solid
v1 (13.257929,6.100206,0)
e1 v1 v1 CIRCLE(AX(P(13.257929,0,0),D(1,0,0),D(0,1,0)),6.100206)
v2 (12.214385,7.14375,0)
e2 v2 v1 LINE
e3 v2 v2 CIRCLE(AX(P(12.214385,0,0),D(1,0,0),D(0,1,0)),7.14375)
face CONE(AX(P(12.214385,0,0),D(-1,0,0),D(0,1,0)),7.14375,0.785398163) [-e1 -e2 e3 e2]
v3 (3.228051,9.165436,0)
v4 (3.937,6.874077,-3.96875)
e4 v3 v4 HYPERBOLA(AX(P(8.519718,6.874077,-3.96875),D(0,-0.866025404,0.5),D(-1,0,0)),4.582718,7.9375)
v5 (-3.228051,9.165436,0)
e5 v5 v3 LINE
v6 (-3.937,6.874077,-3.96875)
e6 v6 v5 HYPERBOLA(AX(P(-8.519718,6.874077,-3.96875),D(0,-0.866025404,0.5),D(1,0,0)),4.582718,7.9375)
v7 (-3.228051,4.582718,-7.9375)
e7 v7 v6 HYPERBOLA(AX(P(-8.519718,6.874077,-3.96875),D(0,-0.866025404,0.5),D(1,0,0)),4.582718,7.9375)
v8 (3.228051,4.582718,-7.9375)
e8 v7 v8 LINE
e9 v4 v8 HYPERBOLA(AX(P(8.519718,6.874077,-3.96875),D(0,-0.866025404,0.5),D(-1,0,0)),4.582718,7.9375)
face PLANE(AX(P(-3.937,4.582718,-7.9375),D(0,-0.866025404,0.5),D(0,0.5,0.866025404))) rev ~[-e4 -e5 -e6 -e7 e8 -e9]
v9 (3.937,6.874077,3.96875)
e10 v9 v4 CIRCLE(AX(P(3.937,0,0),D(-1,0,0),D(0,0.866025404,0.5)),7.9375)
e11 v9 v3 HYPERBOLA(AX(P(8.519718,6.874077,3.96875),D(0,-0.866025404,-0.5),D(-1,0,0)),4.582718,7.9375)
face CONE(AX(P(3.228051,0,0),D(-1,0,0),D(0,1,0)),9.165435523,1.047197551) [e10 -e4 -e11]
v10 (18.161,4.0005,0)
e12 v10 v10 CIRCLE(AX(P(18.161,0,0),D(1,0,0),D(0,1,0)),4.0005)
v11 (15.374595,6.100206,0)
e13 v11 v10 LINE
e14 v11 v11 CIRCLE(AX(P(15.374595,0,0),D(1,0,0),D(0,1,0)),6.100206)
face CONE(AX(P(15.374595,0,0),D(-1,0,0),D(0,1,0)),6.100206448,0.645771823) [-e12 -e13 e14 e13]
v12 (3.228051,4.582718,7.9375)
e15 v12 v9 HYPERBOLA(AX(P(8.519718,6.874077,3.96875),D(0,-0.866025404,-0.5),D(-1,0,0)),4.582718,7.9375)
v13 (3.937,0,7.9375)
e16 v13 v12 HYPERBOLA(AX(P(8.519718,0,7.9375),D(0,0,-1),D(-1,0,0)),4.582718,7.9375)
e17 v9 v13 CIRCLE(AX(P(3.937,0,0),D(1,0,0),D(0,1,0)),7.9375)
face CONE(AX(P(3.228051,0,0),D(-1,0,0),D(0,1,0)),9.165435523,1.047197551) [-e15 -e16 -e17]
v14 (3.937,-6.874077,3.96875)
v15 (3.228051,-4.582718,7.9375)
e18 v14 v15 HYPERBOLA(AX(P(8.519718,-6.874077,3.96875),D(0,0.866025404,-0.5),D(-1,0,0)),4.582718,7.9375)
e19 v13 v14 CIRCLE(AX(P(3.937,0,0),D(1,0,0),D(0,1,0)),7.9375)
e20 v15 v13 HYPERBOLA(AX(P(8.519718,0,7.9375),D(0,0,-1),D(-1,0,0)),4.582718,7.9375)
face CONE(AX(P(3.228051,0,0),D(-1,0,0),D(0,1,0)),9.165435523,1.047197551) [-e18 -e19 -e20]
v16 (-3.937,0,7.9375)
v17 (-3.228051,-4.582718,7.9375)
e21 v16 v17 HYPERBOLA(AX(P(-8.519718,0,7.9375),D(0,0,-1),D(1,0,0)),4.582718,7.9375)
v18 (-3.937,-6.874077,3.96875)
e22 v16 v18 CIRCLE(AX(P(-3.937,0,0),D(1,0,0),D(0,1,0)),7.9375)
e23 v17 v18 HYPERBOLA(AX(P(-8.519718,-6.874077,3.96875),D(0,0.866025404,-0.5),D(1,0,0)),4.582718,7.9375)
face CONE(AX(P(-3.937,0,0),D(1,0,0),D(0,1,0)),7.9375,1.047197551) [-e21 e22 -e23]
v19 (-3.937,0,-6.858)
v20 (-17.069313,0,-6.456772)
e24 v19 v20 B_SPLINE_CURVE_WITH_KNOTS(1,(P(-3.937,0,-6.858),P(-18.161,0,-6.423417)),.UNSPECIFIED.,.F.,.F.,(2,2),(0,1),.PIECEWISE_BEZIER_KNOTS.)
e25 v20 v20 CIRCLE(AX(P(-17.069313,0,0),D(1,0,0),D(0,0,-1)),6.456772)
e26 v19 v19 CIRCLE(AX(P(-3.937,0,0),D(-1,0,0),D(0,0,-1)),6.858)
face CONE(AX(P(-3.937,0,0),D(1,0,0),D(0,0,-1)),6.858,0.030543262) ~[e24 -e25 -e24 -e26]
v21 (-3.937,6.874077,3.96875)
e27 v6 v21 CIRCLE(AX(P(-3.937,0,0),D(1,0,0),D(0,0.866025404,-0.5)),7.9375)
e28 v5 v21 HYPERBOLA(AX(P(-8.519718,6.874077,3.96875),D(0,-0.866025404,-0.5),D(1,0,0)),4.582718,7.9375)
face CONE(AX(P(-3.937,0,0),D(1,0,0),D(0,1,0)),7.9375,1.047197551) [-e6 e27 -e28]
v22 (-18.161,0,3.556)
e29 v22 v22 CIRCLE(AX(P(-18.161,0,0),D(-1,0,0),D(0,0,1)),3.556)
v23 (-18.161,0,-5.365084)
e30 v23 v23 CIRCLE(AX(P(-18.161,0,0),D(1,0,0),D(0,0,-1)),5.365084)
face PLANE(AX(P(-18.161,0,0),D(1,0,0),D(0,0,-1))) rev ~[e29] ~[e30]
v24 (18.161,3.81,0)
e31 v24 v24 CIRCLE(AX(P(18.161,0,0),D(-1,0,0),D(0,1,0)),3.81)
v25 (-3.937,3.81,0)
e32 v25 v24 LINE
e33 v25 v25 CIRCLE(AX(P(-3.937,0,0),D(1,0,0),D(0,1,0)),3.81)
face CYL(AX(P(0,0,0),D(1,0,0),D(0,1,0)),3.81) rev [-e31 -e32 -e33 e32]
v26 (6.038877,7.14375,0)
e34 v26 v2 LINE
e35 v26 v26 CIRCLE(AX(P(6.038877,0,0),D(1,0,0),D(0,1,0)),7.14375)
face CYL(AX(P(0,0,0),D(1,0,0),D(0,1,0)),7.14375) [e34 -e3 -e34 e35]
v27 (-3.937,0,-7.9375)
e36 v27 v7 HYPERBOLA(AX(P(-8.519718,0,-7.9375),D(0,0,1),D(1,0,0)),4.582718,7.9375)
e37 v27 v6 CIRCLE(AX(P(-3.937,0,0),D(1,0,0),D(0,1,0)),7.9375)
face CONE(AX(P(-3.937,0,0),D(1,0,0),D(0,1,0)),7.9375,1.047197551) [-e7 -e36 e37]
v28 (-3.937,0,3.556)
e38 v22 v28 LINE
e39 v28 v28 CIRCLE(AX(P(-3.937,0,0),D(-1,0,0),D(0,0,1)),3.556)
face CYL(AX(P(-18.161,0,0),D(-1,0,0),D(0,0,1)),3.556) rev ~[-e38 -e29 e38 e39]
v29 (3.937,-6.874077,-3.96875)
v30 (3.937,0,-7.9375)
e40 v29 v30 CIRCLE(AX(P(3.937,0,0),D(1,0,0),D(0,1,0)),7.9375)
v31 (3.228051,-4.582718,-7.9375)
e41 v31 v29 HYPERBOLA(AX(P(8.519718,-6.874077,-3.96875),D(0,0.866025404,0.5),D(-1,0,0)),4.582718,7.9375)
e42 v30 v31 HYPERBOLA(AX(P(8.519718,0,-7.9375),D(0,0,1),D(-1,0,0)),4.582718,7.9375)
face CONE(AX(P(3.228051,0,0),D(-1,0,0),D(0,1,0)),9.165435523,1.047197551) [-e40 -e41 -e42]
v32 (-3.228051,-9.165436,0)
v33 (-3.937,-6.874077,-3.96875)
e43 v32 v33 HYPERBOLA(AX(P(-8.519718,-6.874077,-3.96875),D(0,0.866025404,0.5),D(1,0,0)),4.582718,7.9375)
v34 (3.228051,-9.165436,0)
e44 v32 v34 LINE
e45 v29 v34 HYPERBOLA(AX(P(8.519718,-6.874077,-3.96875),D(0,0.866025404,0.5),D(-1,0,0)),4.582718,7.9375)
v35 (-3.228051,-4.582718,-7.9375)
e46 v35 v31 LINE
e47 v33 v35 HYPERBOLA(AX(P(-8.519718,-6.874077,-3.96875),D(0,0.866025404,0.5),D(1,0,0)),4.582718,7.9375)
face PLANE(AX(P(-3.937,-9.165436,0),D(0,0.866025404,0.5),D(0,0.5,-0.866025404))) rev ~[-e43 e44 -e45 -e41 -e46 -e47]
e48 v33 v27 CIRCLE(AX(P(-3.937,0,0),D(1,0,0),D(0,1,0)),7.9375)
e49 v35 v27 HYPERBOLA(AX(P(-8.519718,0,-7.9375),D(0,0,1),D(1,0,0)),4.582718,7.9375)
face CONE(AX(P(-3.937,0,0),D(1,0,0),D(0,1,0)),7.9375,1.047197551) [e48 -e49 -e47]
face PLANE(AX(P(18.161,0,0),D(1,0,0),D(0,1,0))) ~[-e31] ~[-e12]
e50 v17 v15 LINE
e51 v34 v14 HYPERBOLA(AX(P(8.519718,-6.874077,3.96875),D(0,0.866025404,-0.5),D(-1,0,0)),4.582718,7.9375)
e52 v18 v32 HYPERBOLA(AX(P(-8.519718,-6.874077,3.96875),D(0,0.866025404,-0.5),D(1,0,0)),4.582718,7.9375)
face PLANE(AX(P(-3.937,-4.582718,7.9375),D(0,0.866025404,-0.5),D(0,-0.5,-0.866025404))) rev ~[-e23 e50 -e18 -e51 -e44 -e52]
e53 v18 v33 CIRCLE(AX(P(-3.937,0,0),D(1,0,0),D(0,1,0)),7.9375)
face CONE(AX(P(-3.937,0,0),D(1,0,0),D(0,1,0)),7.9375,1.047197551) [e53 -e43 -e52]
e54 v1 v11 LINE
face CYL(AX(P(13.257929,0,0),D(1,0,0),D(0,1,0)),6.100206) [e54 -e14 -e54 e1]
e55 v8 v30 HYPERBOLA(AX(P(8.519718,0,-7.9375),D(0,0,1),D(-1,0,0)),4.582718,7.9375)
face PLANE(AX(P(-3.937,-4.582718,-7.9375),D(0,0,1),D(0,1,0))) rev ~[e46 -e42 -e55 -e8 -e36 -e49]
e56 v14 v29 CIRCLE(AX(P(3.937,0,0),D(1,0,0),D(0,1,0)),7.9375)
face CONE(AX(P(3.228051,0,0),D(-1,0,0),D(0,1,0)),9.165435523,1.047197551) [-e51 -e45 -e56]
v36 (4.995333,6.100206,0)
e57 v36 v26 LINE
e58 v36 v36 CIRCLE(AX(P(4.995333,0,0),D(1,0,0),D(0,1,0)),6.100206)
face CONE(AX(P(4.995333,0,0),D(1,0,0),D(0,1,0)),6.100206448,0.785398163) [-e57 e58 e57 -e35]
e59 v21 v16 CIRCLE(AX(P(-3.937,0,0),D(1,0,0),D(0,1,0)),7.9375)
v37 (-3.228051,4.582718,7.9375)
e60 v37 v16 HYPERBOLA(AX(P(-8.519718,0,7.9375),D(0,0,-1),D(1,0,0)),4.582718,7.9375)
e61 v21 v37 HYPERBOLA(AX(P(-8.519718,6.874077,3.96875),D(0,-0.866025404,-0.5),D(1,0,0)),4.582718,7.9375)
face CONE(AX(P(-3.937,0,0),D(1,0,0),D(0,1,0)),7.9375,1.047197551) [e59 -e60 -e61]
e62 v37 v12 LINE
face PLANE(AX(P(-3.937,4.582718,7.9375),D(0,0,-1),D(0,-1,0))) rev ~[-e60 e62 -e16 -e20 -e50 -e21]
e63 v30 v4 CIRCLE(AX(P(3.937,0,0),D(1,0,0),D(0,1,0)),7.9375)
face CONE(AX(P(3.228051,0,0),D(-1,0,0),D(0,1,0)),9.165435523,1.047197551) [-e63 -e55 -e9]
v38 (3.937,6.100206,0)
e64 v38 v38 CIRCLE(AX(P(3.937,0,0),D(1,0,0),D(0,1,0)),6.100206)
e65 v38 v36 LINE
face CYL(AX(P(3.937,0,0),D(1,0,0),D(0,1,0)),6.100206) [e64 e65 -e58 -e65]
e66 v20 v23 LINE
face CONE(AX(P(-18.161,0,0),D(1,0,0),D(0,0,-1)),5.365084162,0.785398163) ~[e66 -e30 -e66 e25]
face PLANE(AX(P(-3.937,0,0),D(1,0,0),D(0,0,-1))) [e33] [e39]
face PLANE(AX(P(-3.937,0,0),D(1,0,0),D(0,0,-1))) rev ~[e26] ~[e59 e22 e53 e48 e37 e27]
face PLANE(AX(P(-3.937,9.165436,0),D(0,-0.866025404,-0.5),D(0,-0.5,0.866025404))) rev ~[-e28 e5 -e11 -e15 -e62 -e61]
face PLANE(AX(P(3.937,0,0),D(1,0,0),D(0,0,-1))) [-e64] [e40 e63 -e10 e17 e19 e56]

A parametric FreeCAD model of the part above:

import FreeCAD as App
import Part
import Sketcher

V = App.Vector
Q = App.Units.Quantity


def edges_at(feature, points):
    """Names of the edges that pass closest to the given points."""
    edges = feature.Shape.Edges
    near = lambda p: min(range(len(edges)), key=lambda i: edges[i].distToShape(Part.Vertex(*p))[0])
    return sorted({f"Edge{near(p) + 1}" for p in points})

doc = App.newDocument("Part")
params = doc.addObject("Spreadsheet::Sheet", "Params")
for row, (alias, value) in enumerate([
    ("sketch1_width", "1.43 in"),
    ("sketch1_height", "0.28125 in"),
    ("revolution_angle", "360 deg"),
    ("pad1_length", "0.31 in"),
    ("groove_angle", "360 deg"),
    ("sketch4_width", "1.43 in"),
    ("sketch4_height", "0.15 in"),
    ("groove2_angle", "360 deg"),
    ("groove3_angle", "360 deg"),
    ("sketch6_diameter", "0.5625 in"),
    ("pocket1_length", "0.56 in"),
    ("sketch7_diameter", "0.54 in"),
    ("pad2_length", "0.56 in"),
    ("pad2_taper", "-1.75 deg"),
    ("chamfer_size", "0.0429999 in"),
    ("chamfer_size2", "1.058333 mm"),
    ("sketch8_diameter", "0.54 in"),
    ("pad3_length", "0.56 in"),
    ("pad3_taper", "-15 deg"),
    ("sketch9_diameter", "0.28 in"),
    ("pocket2_length", "0.56 in"),
], start=1):
    params.set(f"A{row}", alias)
    params.set(f"B{row}", "=" + value)
    params.setAlias(f"B{row}", alias)

body = doc.addObject("PartDesign::Body", "Body")

# Sketch on XY plane
sketch1 = doc.addObject("Sketcher::SketchObject", "Sketch")
body.addObject(sketch1)
sketch1.AttachmentSupport = (doc.XY_Plane, [""])
sketch1.MapMode = "FlatFace"
sketch1.addGeometry(Part.LineSegment(V(-18, 7, 0), V(-18, 0, 0)), False)
sketch1.addGeometry(Part.LineSegment(V(-18, 0, 0), V(18, 0, 0)), False)
sketch1.addGeometry(Part.LineSegment(V(18, 0, 0), V(18, 7, 0)), False)
sketch1.addGeometry(Part.LineSegment(V(18, 7, 0), V(-18, 7, 0)), False)
sketch1.addConstraint(Sketcher.Constraint("Coincident", 0, 2, 1, 1))
sketch1.addConstraint(Sketcher.Constraint("Coincident", 1, 2, 2, 1))
sketch1.addConstraint(Sketcher.Constraint("Coincident", 2, 2, 3, 1))
sketch1.addConstraint(Sketcher.Constraint("Coincident", 3, 2, 0, 1))
sketch1.addConstraint(Sketcher.Constraint("Vertical", 0))
sketch1.addConstraint(Sketcher.Constraint("Horizontal", 1))
sketch1.addConstraint(Sketcher.Constraint("Vertical", 2))
sketch1.addConstraint(Sketcher.Constraint("Horizontal", 3))
sketch1.addConstraint(Sketcher.Constraint("Symmetric", 0, 2, 1, 2, -1, 1))
sketch1.addConstraint(Sketcher.Constraint("DistanceX", 1, 1, 1, 2, Q("1.43 in")))
sketch1.addConstraint(Sketcher.Constraint("DistanceY", 0, 2, 0, 1, Q("0.28125 in")))
sketch1.setExpression("Constraints[9]", "Params.sketch1_width")
sketch1.setExpression("Constraints[10]", "Params.sketch1_height")
revolution = doc.addObject("PartDesign::Revolution", "Revolution")
body.addObject(revolution)
revolution.Profile = sketch1
revolution.ReferenceAxis = (sketch1, ["H_Axis"])
revolution.setExpression("Angle", "Params.revolution_angle")

# Sketch on YZ plane
sketch2 = doc.addObject("Sketcher::SketchObject", "Sketch001")
body.addObject(sketch2)
sketch2.AttachmentSupport = (doc.YZ_Plane, [""])
sketch2.MapMode = "FlatFace"
sketch2.AttachmentOffset = App.Placement(V(0, 0, -0.155 * 25.4), App.Rotation())
sketch2.addGeometry(Part.LineSegment(V(9, 0, 0), V(5, 8, 0)), False)
sketch2.addGeometry(Part.LineSegment(V(5, 8, 0), V(-5, 8, 0)), False)
sketch2.addGeometry(Part.LineSegment(V(-5, 8, 0), V(-9, 0, 0)), False)
sketch2.addGeometry(Part.LineSegment(V(-9, 0, 0), V(-5, -8, 0)), False)
sketch2.addGeometry(Part.LineSegment(V(-5, -8, 0), V(5, -8, 0)), False)
sketch2.addGeometry(Part.LineSegment(V(5, -8, 0), V(9, 0, 0)), False)
sketch2.addConstraint(Sketcher.Constraint("Coincident", 0, 2, 1, 1))
sketch2.addConstraint(Sketcher.Constraint("Coincident", 1, 2, 2, 1))
sketch2.addConstraint(Sketcher.Constraint("Coincident", 2, 2, 3, 1))
sketch2.addConstraint(Sketcher.Constraint("Coincident", 3, 2, 4, 1))
sketch2.addConstraint(Sketcher.Constraint("Coincident", 4, 2, 5, 1))
sketch2.addConstraint(Sketcher.Constraint("Coincident", 5, 2, 0, 1))
sketch2.addConstraint(Sketcher.Constraint("Horizontal", 1))
sketch2.addConstraint(Sketcher.Constraint("Horizontal", 4))
sketch2.addConstraint(Sketcher.Constraint("Symmetric", 0, 2, 3, 2, -1, 1))
sketch2.addConstraint(Sketcher.Constraint("Symmetric", 2, 2, 5, 2, -1, 1))
sketch2.addConstraint(Sketcher.Constraint("PointOnObject", 2, 2, -1))
sketch2.addConstraint(Sketcher.Constraint("Parallel", 2, 5))
sketch2.addConstraint(Sketcher.Constraint("Vertical", 1, 2, 3, 2))
sketch2.addConstraint(Sketcher.Constraint("Angle", 0, Q("120 deg")))
sketch2.addConstraint(Sketcher.Constraint("DistanceY", -1, 1, 0, 2, Q("0.3125 in")))
sketch2.addConstraint(Sketcher.Constraint("DistanceX", 1, 2, 1, 1, Q("9.165436 mm")))
pad1 = doc.addObject("PartDesign::Pad", "Pad")
body.addObject(pad1)
pad1.Profile = sketch2
pad1.setExpression("Length", "Params.pad1_length")

# Sketch on XY plane
sketch3 = doc.addObject("Sketcher::SketchObject", "Sketch002")
body.addObject(sketch3)
sketch3.AttachmentSupport = (doc.XY_Plane, [""])
sketch3.MapMode = "FlatFace"
sketch3.addGeometry(Part.LineSegment(V(6, 7.1, 0), V(3.9, 7.1, 0)), False)
sketch3.addGeometry(Part.LineSegment(V(3.9, 7.1, 0), V(3.9, 6.1, 0)), False)
sketch3.addGeometry(Part.LineSegment(V(3.9, 6.1, 0), V(5, 6.1, 0)), False)
sketch3.addGeometry(Part.LineSegment(V(5, 6.1, 0), V(6, 7.1, 0)), False)
sketch3.addGeometry(Part.LineSegment(V(18.2, 7.1, 0), V(12.2, 7.1, 0)), False)
sketch3.addGeometry(Part.LineSegment(V(12.2, 7.1, 0), V(13.3, 6.1, 0)), False)
sketch3.addGeometry(Part.LineSegment(V(13.3, 6.1, 0), V(15.4, 6.1, 0)), False)
sketch3.addGeometry(Part.LineSegment(V(15.4, 6.1, 0), V(18.2, 4, 0)), False)
sketch3.addGeometry(Part.LineSegment(V(18.2, 4, 0), V(18.2, 7.1, 0)), False)
sketch3.addConstraint(Sketcher.Constraint("Coincident", 0, 2, 1, 1))
sketch3.addConstraint(Sketcher.Constraint("Coincident", 1, 2, 2, 1))
sketch3.addConstraint(Sketcher.Constraint("Coincident", 2, 2, 3, 1))
sketch3.addConstraint(Sketcher.Constraint("Coincident", 3, 2, 0, 1))
sketch3.addConstraint(Sketcher.Constraint("Coincident", 4, 2, 5, 1))
sketch3.addConstraint(Sketcher.Constraint("Coincident", 5, 2, 6, 1))
sketch3.addConstraint(Sketcher.Constraint("Coincident", 6, 2, 7, 1))
sketch3.addConstraint(Sketcher.Constraint("Coincident", 7, 2, 8, 1))
sketch3.addConstraint(Sketcher.Constraint("Coincident", 8, 2, 4, 1))
sketch3.addConstraint(Sketcher.Constraint("Horizontal", 0))
sketch3.addConstraint(Sketcher.Constraint("Vertical", 1))
sketch3.addConstraint(Sketcher.Constraint("Horizontal", 2))
sketch3.addConstraint(Sketcher.Constraint("Horizontal", 4))
sketch3.addConstraint(Sketcher.Constraint("Horizontal", 6))
sketch3.addConstraint(Sketcher.Constraint("Vertical", 8))
sketch3.addConstraint(Sketcher.Constraint("Perpendicular", 3, 5))
sketch3.addConstraint(Sketcher.Constraint("Horizontal", 3, 2, 4, 2))
sketch3.addConstraint(Sketcher.Constraint("Horizontal", 2, 2, 5, 2))
sketch3.addConstraint(Sketcher.Constraint("Equal", 3, 5))
sketch3.addConstraint(Sketcher.Constraint("Angle", 7, Q("-37 deg")))
sketch3.addConstraint(Sketcher.Constraint("DistanceX", -1, 1, 0, 2, Q("0.155 in")))
sketch3.addConstraint(Sketcher.Constraint("DistanceY", -1, 1, 0, 2, Q("0.28125 in")))
sketch3.addConstraint(Sketcher.Constraint("DistanceX", -1, 1, 7, 2, Q("0.715 in")))
sketch3.addConstraint(Sketcher.Constraint("DistanceY", -1, 1, 7, 2, Q("0.1575 in")))
sketch3.addConstraint(Sketcher.Constraint("DistanceX", 0, 2, 0, 1, Q("2.101877 mm")))
sketch3.addConstraint(Sketcher.Constraint("DistanceX", 2, 1, 2, 2, Q("1.058333 mm")))
sketch3.addConstraint(Sketcher.Constraint("DistanceX", 4, 2, 4, 1, Q("5.946615 mm")))
groove = doc.addObject("PartDesign::Groove", "Groove")
body.addObject(groove)
groove.Profile = sketch3
groove.ReferenceAxis = (sketch3, ["H_Axis"])
groove.setExpression("Angle", "Params.groove_angle")

# Sketch on XY plane
sketch4 = doc.addObject("Sketcher::SketchObject", "Sketch003")
body.addObject(sketch4)
sketch4.AttachmentSupport = (doc.XY_Plane, [""])
sketch4.MapMode = "FlatFace"
sketch4.addGeometry(Part.LineSegment(V(-18.2, 3.8, 0), V(-18.2, 0, 0)), False)
sketch4.addGeometry(Part.LineSegment(V(-18.2, 0, 0), V(18.2, 0, 0)), False)
sketch4.addGeometry(Part.LineSegment(V(18.2, 0, 0), V(18.2, 3.8, 0)), False)
sketch4.addGeometry(Part.LineSegment(V(18.2, 3.8, 0), V(-18.2, 3.8, 0)), False)
sketch4.addConstraint(Sketcher.Constraint("Coincident", 0, 2, 1, 1))
sketch4.addConstraint(Sketcher.Constraint("Coincident", 1, 2, 2, 1))
sketch4.addConstraint(Sketcher.Constraint("Coincident", 2, 2, 3, 1))
sketch4.addConstraint(Sketcher.Constraint("Coincident", 3, 2, 0, 1))
sketch4.addConstraint(Sketcher.Constraint("Vertical", 0))
sketch4.addConstraint(Sketcher.Constraint("Horizontal", 1))
sketch4.addConstraint(Sketcher.Constraint("Vertical", 2))
sketch4.addConstraint(Sketcher.Constraint("Horizontal", 3))
sketch4.addConstraint(Sketcher.Constraint("Symmetric", 0, 2, 1, 2, -1, 1))
sketch4.addConstraint(Sketcher.Constraint("DistanceX", 1, 1, 1, 2, Q("1.43 in")))
sketch4.addConstraint(Sketcher.Constraint("DistanceY", 0, 2, 0, 1, Q("0.15 in")))
sketch4.setExpression("Constraints[9]", "Params.sketch4_width")
sketch4.setExpression("Constraints[10]", "Params.sketch4_height")
groove2 = doc.addObject("PartDesign::Groove", "Groove001")
body.addObject(groove2)
groove2.Profile = sketch4
groove2.ReferenceAxis = (sketch4, ["H_Axis"])
groove2.setExpression("Angle", "Params.groove2_angle")

# Sketch on XY plane
sketch5 = doc.addObject("Sketcher::SketchObject", "Sketch004")
body.addObject(sketch5)
sketch5.AttachmentSupport = (doc.XY_Plane, [""])
sketch5.MapMode = "FlatFace"
sketch5.addGeometry(Part.LineSegment(V(-3.9, 9.2, 0), V(-3.9, 7.9, 0)), False)
sketch5.addGeometry(Part.LineSegment(V(-3.9, 7.9, 0), V(-3.2, 9.2, 0)), False)
sketch5.addGeometry(Part.LineSegment(V(-3.2, 9.2, 0), V(-3.9, 9.2, 0)), False)
sketch5.addGeometry(Part.LineSegment(V(3.2, 9.2, 0), V(3.9, 7.9, 0)), False)
sketch5.addGeometry(Part.LineSegment(V(3.9, 7.9, 0), V(3.9, 9.2, 0)), False)
sketch5.addGeometry(Part.LineSegment(V(3.9, 9.2, 0), V(3.2, 9.2, 0)), False)
sketch5.addConstraint(Sketcher.Constraint("Coincident", 0, 2, 1, 1))
sketch5.addConstraint(Sketcher.Constraint("Coincident", 1, 2, 2, 1))
sketch5.addConstraint(Sketcher.Constraint("Coincident", 2, 2, 0, 1))
sketch5.addConstraint(Sketcher.Constraint("Coincident", 3, 2, 4, 1))
sketch5.addConstraint(Sketcher.Constraint("Coincident", 4, 2, 5, 1))
sketch5.addConstraint(Sketcher.Constraint("Coincident", 5, 2, 3, 1))
sketch5.addConstraint(Sketcher.Constraint("Vertical", 0))
sketch5.addConstraint(Sketcher.Constraint("Horizontal", 2))
sketch5.addConstraint(Sketcher.Constraint("Vertical", 4))
sketch5.addConstraint(Sketcher.Constraint("Horizontal", 5))
sketch5.addConstraint(Sketcher.Constraint("Symmetric", 0, 2, 3, 2, -2))
sketch5.addConstraint(Sketcher.Constraint("Symmetric", 1, 2, 5, 2, -2))
sketch5.addConstraint(Sketcher.Constraint("Angle", 1, Q("60 deg")))
sketch5.addConstraint(Sketcher.Constraint("DistanceX", 0, 2, 3, 2, Q("0.31 in")))
sketch5.addConstraint(Sketcher.Constraint("DistanceY", -1, 1, 0, 2, Q("0.3125 in")))
sketch5.addConstraint(Sketcher.Constraint("DistanceX", 2, 2, 2, 1, Q("0.708949 mm")))
groove3 = doc.addObject("PartDesign::Groove", "Groove002")
body.addObject(groove3)
groove3.Profile = sketch5
groove3.ReferenceAxis = (sketch5, ["H_Axis"])
groove3.setExpression("Angle", "Params.groove3_angle")

# Sketch on YZ plane
sketch6 = doc.addObject("Sketcher::SketchObject", "Sketch005")
body.addObject(sketch6)
sketch6.AttachmentSupport = (doc.YZ_Plane, [""])
sketch6.MapMode = "FlatFace"
sketch6.AttachmentOffset = App.Placement(V(0, 0, -0.715 * 25.4), App.Rotation())
sketch6.addGeometry(Part.Circle(V(0, 0, 0), V(0, 0, 1), 7), False)
sketch6.addConstraint(Sketcher.Constraint("Coincident", 0, 3, -1, 1))
sketch6.addConstraint(Sketcher.Constraint("Diameter", 0, Q("0.5625 in")))
sketch6.setExpression("Constraints[1]", "Params.sketch6_diameter")
pocket1 = doc.addObject("PartDesign::Pocket", "Pocket")
body.addObject(pocket1)
pocket1.Profile = sketch6
pocket1.setExpression("Length", "Params.pocket1_length")
pocket1.Reversed = True
body2 = doc.addObject("PartDesign::Body", "Body001")

# Sketch on YZ plane
sketch7 = doc.addObject("Sketcher::SketchObject", "Sketch006")
body2.addObject(sketch7)
sketch7.AttachmentSupport = (doc.getObject("YZ_Plane001"), [""])
sketch7.MapMode = "FlatFace"
sketch7.AttachmentOffset = App.Placement(V(0, 0, -0.155 * 25.4), App.Rotation())
sketch7.addGeometry(Part.Circle(V(0, 0, 0), V(0, 0, 1), 7), False)
sketch7.addConstraint(Sketcher.Constraint("Coincident", 0, 3, -1, 1))
sketch7.addConstraint(Sketcher.Constraint("Diameter", 0, Q("0.54 in")))
sketch7.setExpression("Constraints[1]", "Params.sketch7_diameter")
pad2 = doc.addObject("PartDesign::Pad", "Pad001")
body2.addObject(pad2)
pad2.Profile = sketch7
pad2.setExpression("Length", "Params.pad2_length")
pad2.Reversed = True
pad2.setExpression("TaperAngle", "Params.pad2_taper")
doc.recompute()

chamfer = doc.addObject("PartDesign::Chamfer", "Chamfer")
body2.addObject(chamfer)
chamfer.Base = (pad2, edges_at(pad2, [(-18.161, 0, 6.423)]))
chamfer.ChamferType = "Two distances"
chamfer.setExpression("Size", "Params.chamfer_size")
chamfer.setExpression("Size2", "Params.chamfer_size2")

# Sketch on YZ plane
sketch8 = doc.addObject("Sketcher::SketchObject", "Sketch007")
body2.addObject(sketch8)
sketch8.AttachmentSupport = (doc.getObject("YZ_Plane001"), [""])
sketch8.MapMode = "FlatFace"
sketch8.AttachmentOffset = App.Placement(V(0, 0, -0.155 * 25.4), App.Rotation())
sketch8.addGeometry(Part.Circle(V(0, 0, 0), V(0, 0, 1), 7), False)
sketch8.addConstraint(Sketcher.Constraint("Coincident", 0, 3, -1, 1))
sketch8.addConstraint(Sketcher.Constraint("Diameter", 0, Q("0.54 in")))
sketch8.setExpression("Constraints[1]", "Params.sketch8_diameter")
pad3 = doc.addObject("PartDesign::Pad", "Pad002")
body2.addObject(pad3)
pad3.Profile = sketch8
pad3.setExpression("Length", "Params.pad3_length")
pad3.Reversed = True
pad3.setExpression("TaperAngle", "Params.pad3_taper")
doc.recompute()

boolean = doc.addObject("PartDesign::Boolean", "Boolean")
body2.addObject(boolean)
boolean.Type = "Fuse"
boolean.addObjects([body])

# Sketch on YZ plane
sketch9 = doc.addObject("Sketcher::SketchObject", "Sketch008")
body2.addObject(sketch9)
sketch9.AttachmentSupport = (doc.getObject("YZ_Plane001"), [""])
sketch9.MapMode = "FlatFace"
sketch9.AttachmentOffset = App.Placement(V(0, 0, -0.715 * 25.4), App.Rotation())
sketch9.addGeometry(Part.Circle(V(0, 0, 0), V(0, 0, 1), 3.6), False)
sketch9.addConstraint(Sketcher.Constraint("Coincident", 0, 3, -1, 1))
sketch9.addConstraint(Sketcher.Constraint("Diameter", 0, Q("0.28 in")))
sketch9.setExpression("Constraints[1]", "Params.sketch9_diameter")
pocket2 = doc.addObject("PartDesign::Pocket", "Pocket001")
body2.addObject(pocket2)
pocket2.Profile = sketch9
pocket2.setExpression("Length", "Params.pocket2_length")
pocket2.Reversed = True

doc.recompute()
